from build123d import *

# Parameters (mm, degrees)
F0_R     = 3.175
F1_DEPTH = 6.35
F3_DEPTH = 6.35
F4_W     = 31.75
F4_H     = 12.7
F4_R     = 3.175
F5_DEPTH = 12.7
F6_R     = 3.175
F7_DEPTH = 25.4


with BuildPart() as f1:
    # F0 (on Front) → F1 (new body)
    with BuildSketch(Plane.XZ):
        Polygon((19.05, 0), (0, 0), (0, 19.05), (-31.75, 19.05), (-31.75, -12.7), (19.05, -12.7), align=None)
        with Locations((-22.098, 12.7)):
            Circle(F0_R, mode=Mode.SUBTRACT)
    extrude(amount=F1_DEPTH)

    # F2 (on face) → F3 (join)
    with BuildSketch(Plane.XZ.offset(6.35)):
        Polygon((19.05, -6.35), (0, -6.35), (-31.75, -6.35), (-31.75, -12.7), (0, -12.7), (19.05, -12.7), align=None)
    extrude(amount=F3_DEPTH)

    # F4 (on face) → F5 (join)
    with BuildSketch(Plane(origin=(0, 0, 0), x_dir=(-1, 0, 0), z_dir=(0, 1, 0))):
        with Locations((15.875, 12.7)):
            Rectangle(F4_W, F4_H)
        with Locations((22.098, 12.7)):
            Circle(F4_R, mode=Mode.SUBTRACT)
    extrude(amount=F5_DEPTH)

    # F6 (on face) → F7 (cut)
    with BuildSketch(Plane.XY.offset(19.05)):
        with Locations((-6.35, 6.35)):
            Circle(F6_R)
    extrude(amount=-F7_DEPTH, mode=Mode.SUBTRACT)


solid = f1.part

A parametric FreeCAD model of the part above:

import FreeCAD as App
import Part
import Sketcher
Q = App.Units.Quantity

doc = App.newDocument("Part")
params = doc.addObject("Spreadsheet::Sheet", "Params")
for row, (alias, value) in enumerate([
    ("sketch1_diameter", "0.25 in"),
    ("sketch1_width", "2 in"),
    ("sketch1_height", "0.5 in"),
    ("pad1_length", "0.25 in"),
    ("sketch2_width", "2 in"),
    ("sketch2_height", "0.25 in"),
    ("pad2_length", "0.25 in"),
    ("sketch3_diameter", "0.25 in"),
    ("sketch3_height", "0.5 in"),
    ("sketch3_width", "1.25 in"),
    ("pad3_length", "0.5 in"),
    ("sketch4_diameter", "0.25 in"),
    ("pocket1_length", "1 in"),
], start=1):
    params.set(f"A{row}", alias)
    params.set(f"B{row}", "=" + value)
    params.setAlias(f"B{row}", alias)

body = doc.addObject("PartDesign::Body", "Body")

# Sketch on XZ plane
sketch1 = body.newObject("Sketcher::SketchObject", "Sketch")
sketch1.AttachmentSupport = (doc.getObject("XZ_Plane"), [""])
sketch1.MapMode = "FlatFace"
sketch1.addGeometry([
    Part.LineSegment(App.Vector(19.05, 0, 0), App.Vector(0, 0, 0)),  # 0
    Part.LineSegment(App.Vector(0, 0, 0), App.Vector(0, 19.05, 0)),  # 1
    Part.LineSegment(App.Vector(0, 19.05, 0), App.Vector(-31.75, 19.05, 0)),  # 2
    Part.LineSegment(App.Vector(-31.75, 19.05, 0), App.Vector(-31.75, -12.7, 0)),  # 3
    Part.LineSegment(App.Vector(-31.75, -12.7, 0), App.Vector(19.05, -12.7, 0)),  # 4
    Part.LineSegment(App.Vector(19.05, -12.7, 0), App.Vector(19.05, 0, 0)),  # 5
    Part.Circle(App.Vector(-22.098, 12.7, 0), App.Vector(0, 0, 1), 3.175),  # 6
], False)
sketch1.addConstraint([
    Sketcher.Constraint("Coincident", 0, 2, 1, 1),
    Sketcher.Constraint("Coincident", 1, 2, 2, 1),
    Sketcher.Constraint("Coincident", 2, 2, 3, 1),
    Sketcher.Constraint("Coincident", 3, 2, 4, 1),
    Sketcher.Constraint("Coincident", 4, 2, 5, 1),
    Sketcher.Constraint("Coincident", 5, 2, 0, 1),
    Sketcher.Constraint("Horizontal", 0),
    Sketcher.Constraint("Vertical", 1),
    Sketcher.Constraint("Horizontal", 2),
    Sketcher.Constraint("Vertical", 3),
    Sketcher.Constraint("Horizontal", 4),
    Sketcher.Constraint("Vertical", 5),
    Sketcher.Constraint("Coincident", 0, 2, -1, 1),
    Sketcher.Constraint("Equal", 0, 1),
    Sketcher.Constraint("Equal", 2, 3),
    Sketcher.Constraint("Diameter", 6, Q("0.25 in")),
    Sketcher.Constraint("DistanceX", 4, 1, 4, 2, Q("2 in")),
    Sketcher.Constraint("DistanceY", 5, 1, 5, 2, Q("0.5 in")),
    Sketcher.Constraint("DistanceY", 3, 2, 6, 3, Q("1 in")),
    Sketcher.Constraint("DistanceX", 6, 3, -1, 1, Q("0.87 in")),
])
sketch1.setExpression("Constraints[15]", "Params.sketch1_diameter")
sketch1.setExpression("Constraints[16]", "Params.sketch1_width")
sketch1.setExpression("Constraints[17]", "Params.sketch1_height")
pad1 = body.newObject("PartDesign::Pad", "Pad")
pad1.Profile = sketch1
pad1.setExpression("Length", "Params.pad1_length")

# Sketch on XZ plane
sketch2 = body.newObject("Sketcher::SketchObject", "Sketch001")
sketch2.AttachmentSupport = (doc.getObject("XZ_Plane"), [""])
sketch2.MapMode = "FlatFace"
sketch2.AttachmentOffset = App.Placement(App.Vector(0, 0, 0.25 * 25.4), App.Rotation())
sketch2.addGeometry([
    Part.LineSegment(App.Vector(19.05, -6.35, 0), App.Vector(-31.75, -6.35, 0)),
    Part.LineSegment(App.Vector(-31.75, -6.35, 0), App.Vector(-31.75, -12.7, 0)),
    Part.LineSegment(App.Vector(-31.75, -12.7, 0), App.Vector(19.05, -12.7, 0)),
    Part.LineSegment(App.Vector(19.05, -12.7, 0), App.Vector(19.05, -6.35, 0)),
], False)
sketch2.addConstraint([
    Sketcher.Constraint("Coincident", 0, 2, 1, 1),
    Sketcher.Constraint("Coincident", 1, 2, 2, 1),
    Sketcher.Constraint("Coincident", 2, 2, 3, 1),
    Sketcher.Constraint("Coincident", 3, 2, 0, 1),
    Sketcher.Constraint("Horizontal", 0),
    Sketcher.Constraint("Vertical", 1),
    Sketcher.Constraint("Horizontal", 2),
    Sketcher.Constraint("Vertical", 3),
    Sketcher.Constraint("DistanceX", 0, 2, 0, 1, Q("2 in")),
    Sketcher.Constraint("DistanceY", 1, 2, 1, 1, Q("0.25 in")),
    Sketcher.Constraint("DistanceY", 1, 2, -1, 1, Q("0.5 in")),
    Sketcher.Constraint("DistanceX", 0, 2, -1, 1, Q("1.25 in")),
])
sketch2.setExpression("Constraints[8]", "Params.sketch2_width")
sketch2.setExpression("Constraints[9]", "Params.sketch2_height")
pad2 = body.newObject("PartDesign::Pad", "Pad001")
pad2.Profile = sketch2
pad2.setExpression("Length", "Params.pad2_length")

# Sketch on XZ plane
sketch3 = body.newObject("Sketcher::SketchObject", "Sketch002")
sketch3.AttachmentSupport = (doc.getObject("XZ_Plane"), [""])
sketch3.MapMode = "FlatFace"
sketch3.addGeometry([
    Part.LineSegment(App.Vector(0, 19.05, 0), App.Vector(0, 6.35, 0)),  # 0
    Part.LineSegment(App.Vector(0, 6.35, 0), App.Vector(-31.75, 6.35, 0)),  # 1
    Part.LineSegment(App.Vector(-31.75, 6.35, 0), App.Vector(-31.75, 19.05, 0)),  # 2
    Part.LineSegment(App.Vector(-31.75, 19.05, 0), App.Vector(0, 19.05, 0)),  # 3
    Part.Circle(App.Vector(-22.098, 12.7, 0), App.Vector(0, 0, 1), 3.175),  # 4
], False)
sketch3.addConstraint([
    Sketcher.Constraint("Coincident", 0, 2, 1, 1),
    Sketcher.Constraint("Coincident", 1, 2, 2, 1),
    Sketcher.Constraint("Coincident", 2, 2, 3, 1),
    Sketcher.Constraint("Coincident", 3, 2, 0, 1),
    Sketcher.Constraint("Vertical", 0),
    Sketcher.Constraint("Horizontal", 1),
    Sketcher.Constraint("Vertical", 2),
    Sketcher.Constraint("Horizontal", 3),
    Sketcher.Constraint("PointOnObject", 0, 2, -2),
    Sketcher.Constraint("Diameter", 4, Q("0.25 in")),
    Sketcher.Constraint("DistanceY", 0, 2, 0, 1, Q("0.5 in")),
    Sketcher.Constraint("DistanceX", 1, 2, 1, 1, Q("1.25 in")),
    Sketcher.Constraint("DistanceY", -1, 1, 4, 3, Q("0.5 in")),
    Sketcher.Constraint("DistanceX", 4, 3, -1, 1, Q("0.87 in")),
    Sketcher.Constraint("DistanceY", -1, 1, 0, 2, Q("0.25 in")),
])
sketch3.setExpression("Constraints[9]", "Params.sketch3_diameter")
sketch3.setExpression("Constraints[10]", "Params.sketch3_height")
sketch3.setExpression("Constraints[11]", "Params.sketch3_width")
pad3 = body.newObject("PartDesign::Pad", "Pad002")
pad3.Profile = sketch3
pad3.setExpression("Length", "Params.pad3_length")
pad3.Reversed = True

# Sketch on XY plane
sketch4 = body.newObject("Sketcher::SketchObject", "Sketch003")
sketch4.AttachmentSupport = (doc.getObject("XY_Plane"), [""])
sketch4.MapMode = "FlatFace"
sketch4.AttachmentOffset = App.Placement(App.Vector(0, 0, 0.75 * 25.4), App.Rotation())
sketch4.addGeometry(Part.Circle(App.Vector(-6.35, 6.35, 0), App.Vector(0, 0, 1), 3.175), False)
sketch4.addConstraint([
    Sketcher.Constraint("Diameter", 0, Q("0.25 in")),
    Sketcher.Constraint("DistanceX", 0, 3, -1, 1, Q("0.25 in")),
    Sketcher.Constraint("DistanceY", -1, 1, 0, 3, Q("0.25 in")),
])
sketch4.setExpression("Constraints[0]", "Params.sketch4_diameter")
pocket1 = body.newObject("PartDesign::Pocket", "Pocket")
pocket1.Profile = sketch4
pocket1.setExpression("Length", "Params.pocket1_length")

doc.recompute()
